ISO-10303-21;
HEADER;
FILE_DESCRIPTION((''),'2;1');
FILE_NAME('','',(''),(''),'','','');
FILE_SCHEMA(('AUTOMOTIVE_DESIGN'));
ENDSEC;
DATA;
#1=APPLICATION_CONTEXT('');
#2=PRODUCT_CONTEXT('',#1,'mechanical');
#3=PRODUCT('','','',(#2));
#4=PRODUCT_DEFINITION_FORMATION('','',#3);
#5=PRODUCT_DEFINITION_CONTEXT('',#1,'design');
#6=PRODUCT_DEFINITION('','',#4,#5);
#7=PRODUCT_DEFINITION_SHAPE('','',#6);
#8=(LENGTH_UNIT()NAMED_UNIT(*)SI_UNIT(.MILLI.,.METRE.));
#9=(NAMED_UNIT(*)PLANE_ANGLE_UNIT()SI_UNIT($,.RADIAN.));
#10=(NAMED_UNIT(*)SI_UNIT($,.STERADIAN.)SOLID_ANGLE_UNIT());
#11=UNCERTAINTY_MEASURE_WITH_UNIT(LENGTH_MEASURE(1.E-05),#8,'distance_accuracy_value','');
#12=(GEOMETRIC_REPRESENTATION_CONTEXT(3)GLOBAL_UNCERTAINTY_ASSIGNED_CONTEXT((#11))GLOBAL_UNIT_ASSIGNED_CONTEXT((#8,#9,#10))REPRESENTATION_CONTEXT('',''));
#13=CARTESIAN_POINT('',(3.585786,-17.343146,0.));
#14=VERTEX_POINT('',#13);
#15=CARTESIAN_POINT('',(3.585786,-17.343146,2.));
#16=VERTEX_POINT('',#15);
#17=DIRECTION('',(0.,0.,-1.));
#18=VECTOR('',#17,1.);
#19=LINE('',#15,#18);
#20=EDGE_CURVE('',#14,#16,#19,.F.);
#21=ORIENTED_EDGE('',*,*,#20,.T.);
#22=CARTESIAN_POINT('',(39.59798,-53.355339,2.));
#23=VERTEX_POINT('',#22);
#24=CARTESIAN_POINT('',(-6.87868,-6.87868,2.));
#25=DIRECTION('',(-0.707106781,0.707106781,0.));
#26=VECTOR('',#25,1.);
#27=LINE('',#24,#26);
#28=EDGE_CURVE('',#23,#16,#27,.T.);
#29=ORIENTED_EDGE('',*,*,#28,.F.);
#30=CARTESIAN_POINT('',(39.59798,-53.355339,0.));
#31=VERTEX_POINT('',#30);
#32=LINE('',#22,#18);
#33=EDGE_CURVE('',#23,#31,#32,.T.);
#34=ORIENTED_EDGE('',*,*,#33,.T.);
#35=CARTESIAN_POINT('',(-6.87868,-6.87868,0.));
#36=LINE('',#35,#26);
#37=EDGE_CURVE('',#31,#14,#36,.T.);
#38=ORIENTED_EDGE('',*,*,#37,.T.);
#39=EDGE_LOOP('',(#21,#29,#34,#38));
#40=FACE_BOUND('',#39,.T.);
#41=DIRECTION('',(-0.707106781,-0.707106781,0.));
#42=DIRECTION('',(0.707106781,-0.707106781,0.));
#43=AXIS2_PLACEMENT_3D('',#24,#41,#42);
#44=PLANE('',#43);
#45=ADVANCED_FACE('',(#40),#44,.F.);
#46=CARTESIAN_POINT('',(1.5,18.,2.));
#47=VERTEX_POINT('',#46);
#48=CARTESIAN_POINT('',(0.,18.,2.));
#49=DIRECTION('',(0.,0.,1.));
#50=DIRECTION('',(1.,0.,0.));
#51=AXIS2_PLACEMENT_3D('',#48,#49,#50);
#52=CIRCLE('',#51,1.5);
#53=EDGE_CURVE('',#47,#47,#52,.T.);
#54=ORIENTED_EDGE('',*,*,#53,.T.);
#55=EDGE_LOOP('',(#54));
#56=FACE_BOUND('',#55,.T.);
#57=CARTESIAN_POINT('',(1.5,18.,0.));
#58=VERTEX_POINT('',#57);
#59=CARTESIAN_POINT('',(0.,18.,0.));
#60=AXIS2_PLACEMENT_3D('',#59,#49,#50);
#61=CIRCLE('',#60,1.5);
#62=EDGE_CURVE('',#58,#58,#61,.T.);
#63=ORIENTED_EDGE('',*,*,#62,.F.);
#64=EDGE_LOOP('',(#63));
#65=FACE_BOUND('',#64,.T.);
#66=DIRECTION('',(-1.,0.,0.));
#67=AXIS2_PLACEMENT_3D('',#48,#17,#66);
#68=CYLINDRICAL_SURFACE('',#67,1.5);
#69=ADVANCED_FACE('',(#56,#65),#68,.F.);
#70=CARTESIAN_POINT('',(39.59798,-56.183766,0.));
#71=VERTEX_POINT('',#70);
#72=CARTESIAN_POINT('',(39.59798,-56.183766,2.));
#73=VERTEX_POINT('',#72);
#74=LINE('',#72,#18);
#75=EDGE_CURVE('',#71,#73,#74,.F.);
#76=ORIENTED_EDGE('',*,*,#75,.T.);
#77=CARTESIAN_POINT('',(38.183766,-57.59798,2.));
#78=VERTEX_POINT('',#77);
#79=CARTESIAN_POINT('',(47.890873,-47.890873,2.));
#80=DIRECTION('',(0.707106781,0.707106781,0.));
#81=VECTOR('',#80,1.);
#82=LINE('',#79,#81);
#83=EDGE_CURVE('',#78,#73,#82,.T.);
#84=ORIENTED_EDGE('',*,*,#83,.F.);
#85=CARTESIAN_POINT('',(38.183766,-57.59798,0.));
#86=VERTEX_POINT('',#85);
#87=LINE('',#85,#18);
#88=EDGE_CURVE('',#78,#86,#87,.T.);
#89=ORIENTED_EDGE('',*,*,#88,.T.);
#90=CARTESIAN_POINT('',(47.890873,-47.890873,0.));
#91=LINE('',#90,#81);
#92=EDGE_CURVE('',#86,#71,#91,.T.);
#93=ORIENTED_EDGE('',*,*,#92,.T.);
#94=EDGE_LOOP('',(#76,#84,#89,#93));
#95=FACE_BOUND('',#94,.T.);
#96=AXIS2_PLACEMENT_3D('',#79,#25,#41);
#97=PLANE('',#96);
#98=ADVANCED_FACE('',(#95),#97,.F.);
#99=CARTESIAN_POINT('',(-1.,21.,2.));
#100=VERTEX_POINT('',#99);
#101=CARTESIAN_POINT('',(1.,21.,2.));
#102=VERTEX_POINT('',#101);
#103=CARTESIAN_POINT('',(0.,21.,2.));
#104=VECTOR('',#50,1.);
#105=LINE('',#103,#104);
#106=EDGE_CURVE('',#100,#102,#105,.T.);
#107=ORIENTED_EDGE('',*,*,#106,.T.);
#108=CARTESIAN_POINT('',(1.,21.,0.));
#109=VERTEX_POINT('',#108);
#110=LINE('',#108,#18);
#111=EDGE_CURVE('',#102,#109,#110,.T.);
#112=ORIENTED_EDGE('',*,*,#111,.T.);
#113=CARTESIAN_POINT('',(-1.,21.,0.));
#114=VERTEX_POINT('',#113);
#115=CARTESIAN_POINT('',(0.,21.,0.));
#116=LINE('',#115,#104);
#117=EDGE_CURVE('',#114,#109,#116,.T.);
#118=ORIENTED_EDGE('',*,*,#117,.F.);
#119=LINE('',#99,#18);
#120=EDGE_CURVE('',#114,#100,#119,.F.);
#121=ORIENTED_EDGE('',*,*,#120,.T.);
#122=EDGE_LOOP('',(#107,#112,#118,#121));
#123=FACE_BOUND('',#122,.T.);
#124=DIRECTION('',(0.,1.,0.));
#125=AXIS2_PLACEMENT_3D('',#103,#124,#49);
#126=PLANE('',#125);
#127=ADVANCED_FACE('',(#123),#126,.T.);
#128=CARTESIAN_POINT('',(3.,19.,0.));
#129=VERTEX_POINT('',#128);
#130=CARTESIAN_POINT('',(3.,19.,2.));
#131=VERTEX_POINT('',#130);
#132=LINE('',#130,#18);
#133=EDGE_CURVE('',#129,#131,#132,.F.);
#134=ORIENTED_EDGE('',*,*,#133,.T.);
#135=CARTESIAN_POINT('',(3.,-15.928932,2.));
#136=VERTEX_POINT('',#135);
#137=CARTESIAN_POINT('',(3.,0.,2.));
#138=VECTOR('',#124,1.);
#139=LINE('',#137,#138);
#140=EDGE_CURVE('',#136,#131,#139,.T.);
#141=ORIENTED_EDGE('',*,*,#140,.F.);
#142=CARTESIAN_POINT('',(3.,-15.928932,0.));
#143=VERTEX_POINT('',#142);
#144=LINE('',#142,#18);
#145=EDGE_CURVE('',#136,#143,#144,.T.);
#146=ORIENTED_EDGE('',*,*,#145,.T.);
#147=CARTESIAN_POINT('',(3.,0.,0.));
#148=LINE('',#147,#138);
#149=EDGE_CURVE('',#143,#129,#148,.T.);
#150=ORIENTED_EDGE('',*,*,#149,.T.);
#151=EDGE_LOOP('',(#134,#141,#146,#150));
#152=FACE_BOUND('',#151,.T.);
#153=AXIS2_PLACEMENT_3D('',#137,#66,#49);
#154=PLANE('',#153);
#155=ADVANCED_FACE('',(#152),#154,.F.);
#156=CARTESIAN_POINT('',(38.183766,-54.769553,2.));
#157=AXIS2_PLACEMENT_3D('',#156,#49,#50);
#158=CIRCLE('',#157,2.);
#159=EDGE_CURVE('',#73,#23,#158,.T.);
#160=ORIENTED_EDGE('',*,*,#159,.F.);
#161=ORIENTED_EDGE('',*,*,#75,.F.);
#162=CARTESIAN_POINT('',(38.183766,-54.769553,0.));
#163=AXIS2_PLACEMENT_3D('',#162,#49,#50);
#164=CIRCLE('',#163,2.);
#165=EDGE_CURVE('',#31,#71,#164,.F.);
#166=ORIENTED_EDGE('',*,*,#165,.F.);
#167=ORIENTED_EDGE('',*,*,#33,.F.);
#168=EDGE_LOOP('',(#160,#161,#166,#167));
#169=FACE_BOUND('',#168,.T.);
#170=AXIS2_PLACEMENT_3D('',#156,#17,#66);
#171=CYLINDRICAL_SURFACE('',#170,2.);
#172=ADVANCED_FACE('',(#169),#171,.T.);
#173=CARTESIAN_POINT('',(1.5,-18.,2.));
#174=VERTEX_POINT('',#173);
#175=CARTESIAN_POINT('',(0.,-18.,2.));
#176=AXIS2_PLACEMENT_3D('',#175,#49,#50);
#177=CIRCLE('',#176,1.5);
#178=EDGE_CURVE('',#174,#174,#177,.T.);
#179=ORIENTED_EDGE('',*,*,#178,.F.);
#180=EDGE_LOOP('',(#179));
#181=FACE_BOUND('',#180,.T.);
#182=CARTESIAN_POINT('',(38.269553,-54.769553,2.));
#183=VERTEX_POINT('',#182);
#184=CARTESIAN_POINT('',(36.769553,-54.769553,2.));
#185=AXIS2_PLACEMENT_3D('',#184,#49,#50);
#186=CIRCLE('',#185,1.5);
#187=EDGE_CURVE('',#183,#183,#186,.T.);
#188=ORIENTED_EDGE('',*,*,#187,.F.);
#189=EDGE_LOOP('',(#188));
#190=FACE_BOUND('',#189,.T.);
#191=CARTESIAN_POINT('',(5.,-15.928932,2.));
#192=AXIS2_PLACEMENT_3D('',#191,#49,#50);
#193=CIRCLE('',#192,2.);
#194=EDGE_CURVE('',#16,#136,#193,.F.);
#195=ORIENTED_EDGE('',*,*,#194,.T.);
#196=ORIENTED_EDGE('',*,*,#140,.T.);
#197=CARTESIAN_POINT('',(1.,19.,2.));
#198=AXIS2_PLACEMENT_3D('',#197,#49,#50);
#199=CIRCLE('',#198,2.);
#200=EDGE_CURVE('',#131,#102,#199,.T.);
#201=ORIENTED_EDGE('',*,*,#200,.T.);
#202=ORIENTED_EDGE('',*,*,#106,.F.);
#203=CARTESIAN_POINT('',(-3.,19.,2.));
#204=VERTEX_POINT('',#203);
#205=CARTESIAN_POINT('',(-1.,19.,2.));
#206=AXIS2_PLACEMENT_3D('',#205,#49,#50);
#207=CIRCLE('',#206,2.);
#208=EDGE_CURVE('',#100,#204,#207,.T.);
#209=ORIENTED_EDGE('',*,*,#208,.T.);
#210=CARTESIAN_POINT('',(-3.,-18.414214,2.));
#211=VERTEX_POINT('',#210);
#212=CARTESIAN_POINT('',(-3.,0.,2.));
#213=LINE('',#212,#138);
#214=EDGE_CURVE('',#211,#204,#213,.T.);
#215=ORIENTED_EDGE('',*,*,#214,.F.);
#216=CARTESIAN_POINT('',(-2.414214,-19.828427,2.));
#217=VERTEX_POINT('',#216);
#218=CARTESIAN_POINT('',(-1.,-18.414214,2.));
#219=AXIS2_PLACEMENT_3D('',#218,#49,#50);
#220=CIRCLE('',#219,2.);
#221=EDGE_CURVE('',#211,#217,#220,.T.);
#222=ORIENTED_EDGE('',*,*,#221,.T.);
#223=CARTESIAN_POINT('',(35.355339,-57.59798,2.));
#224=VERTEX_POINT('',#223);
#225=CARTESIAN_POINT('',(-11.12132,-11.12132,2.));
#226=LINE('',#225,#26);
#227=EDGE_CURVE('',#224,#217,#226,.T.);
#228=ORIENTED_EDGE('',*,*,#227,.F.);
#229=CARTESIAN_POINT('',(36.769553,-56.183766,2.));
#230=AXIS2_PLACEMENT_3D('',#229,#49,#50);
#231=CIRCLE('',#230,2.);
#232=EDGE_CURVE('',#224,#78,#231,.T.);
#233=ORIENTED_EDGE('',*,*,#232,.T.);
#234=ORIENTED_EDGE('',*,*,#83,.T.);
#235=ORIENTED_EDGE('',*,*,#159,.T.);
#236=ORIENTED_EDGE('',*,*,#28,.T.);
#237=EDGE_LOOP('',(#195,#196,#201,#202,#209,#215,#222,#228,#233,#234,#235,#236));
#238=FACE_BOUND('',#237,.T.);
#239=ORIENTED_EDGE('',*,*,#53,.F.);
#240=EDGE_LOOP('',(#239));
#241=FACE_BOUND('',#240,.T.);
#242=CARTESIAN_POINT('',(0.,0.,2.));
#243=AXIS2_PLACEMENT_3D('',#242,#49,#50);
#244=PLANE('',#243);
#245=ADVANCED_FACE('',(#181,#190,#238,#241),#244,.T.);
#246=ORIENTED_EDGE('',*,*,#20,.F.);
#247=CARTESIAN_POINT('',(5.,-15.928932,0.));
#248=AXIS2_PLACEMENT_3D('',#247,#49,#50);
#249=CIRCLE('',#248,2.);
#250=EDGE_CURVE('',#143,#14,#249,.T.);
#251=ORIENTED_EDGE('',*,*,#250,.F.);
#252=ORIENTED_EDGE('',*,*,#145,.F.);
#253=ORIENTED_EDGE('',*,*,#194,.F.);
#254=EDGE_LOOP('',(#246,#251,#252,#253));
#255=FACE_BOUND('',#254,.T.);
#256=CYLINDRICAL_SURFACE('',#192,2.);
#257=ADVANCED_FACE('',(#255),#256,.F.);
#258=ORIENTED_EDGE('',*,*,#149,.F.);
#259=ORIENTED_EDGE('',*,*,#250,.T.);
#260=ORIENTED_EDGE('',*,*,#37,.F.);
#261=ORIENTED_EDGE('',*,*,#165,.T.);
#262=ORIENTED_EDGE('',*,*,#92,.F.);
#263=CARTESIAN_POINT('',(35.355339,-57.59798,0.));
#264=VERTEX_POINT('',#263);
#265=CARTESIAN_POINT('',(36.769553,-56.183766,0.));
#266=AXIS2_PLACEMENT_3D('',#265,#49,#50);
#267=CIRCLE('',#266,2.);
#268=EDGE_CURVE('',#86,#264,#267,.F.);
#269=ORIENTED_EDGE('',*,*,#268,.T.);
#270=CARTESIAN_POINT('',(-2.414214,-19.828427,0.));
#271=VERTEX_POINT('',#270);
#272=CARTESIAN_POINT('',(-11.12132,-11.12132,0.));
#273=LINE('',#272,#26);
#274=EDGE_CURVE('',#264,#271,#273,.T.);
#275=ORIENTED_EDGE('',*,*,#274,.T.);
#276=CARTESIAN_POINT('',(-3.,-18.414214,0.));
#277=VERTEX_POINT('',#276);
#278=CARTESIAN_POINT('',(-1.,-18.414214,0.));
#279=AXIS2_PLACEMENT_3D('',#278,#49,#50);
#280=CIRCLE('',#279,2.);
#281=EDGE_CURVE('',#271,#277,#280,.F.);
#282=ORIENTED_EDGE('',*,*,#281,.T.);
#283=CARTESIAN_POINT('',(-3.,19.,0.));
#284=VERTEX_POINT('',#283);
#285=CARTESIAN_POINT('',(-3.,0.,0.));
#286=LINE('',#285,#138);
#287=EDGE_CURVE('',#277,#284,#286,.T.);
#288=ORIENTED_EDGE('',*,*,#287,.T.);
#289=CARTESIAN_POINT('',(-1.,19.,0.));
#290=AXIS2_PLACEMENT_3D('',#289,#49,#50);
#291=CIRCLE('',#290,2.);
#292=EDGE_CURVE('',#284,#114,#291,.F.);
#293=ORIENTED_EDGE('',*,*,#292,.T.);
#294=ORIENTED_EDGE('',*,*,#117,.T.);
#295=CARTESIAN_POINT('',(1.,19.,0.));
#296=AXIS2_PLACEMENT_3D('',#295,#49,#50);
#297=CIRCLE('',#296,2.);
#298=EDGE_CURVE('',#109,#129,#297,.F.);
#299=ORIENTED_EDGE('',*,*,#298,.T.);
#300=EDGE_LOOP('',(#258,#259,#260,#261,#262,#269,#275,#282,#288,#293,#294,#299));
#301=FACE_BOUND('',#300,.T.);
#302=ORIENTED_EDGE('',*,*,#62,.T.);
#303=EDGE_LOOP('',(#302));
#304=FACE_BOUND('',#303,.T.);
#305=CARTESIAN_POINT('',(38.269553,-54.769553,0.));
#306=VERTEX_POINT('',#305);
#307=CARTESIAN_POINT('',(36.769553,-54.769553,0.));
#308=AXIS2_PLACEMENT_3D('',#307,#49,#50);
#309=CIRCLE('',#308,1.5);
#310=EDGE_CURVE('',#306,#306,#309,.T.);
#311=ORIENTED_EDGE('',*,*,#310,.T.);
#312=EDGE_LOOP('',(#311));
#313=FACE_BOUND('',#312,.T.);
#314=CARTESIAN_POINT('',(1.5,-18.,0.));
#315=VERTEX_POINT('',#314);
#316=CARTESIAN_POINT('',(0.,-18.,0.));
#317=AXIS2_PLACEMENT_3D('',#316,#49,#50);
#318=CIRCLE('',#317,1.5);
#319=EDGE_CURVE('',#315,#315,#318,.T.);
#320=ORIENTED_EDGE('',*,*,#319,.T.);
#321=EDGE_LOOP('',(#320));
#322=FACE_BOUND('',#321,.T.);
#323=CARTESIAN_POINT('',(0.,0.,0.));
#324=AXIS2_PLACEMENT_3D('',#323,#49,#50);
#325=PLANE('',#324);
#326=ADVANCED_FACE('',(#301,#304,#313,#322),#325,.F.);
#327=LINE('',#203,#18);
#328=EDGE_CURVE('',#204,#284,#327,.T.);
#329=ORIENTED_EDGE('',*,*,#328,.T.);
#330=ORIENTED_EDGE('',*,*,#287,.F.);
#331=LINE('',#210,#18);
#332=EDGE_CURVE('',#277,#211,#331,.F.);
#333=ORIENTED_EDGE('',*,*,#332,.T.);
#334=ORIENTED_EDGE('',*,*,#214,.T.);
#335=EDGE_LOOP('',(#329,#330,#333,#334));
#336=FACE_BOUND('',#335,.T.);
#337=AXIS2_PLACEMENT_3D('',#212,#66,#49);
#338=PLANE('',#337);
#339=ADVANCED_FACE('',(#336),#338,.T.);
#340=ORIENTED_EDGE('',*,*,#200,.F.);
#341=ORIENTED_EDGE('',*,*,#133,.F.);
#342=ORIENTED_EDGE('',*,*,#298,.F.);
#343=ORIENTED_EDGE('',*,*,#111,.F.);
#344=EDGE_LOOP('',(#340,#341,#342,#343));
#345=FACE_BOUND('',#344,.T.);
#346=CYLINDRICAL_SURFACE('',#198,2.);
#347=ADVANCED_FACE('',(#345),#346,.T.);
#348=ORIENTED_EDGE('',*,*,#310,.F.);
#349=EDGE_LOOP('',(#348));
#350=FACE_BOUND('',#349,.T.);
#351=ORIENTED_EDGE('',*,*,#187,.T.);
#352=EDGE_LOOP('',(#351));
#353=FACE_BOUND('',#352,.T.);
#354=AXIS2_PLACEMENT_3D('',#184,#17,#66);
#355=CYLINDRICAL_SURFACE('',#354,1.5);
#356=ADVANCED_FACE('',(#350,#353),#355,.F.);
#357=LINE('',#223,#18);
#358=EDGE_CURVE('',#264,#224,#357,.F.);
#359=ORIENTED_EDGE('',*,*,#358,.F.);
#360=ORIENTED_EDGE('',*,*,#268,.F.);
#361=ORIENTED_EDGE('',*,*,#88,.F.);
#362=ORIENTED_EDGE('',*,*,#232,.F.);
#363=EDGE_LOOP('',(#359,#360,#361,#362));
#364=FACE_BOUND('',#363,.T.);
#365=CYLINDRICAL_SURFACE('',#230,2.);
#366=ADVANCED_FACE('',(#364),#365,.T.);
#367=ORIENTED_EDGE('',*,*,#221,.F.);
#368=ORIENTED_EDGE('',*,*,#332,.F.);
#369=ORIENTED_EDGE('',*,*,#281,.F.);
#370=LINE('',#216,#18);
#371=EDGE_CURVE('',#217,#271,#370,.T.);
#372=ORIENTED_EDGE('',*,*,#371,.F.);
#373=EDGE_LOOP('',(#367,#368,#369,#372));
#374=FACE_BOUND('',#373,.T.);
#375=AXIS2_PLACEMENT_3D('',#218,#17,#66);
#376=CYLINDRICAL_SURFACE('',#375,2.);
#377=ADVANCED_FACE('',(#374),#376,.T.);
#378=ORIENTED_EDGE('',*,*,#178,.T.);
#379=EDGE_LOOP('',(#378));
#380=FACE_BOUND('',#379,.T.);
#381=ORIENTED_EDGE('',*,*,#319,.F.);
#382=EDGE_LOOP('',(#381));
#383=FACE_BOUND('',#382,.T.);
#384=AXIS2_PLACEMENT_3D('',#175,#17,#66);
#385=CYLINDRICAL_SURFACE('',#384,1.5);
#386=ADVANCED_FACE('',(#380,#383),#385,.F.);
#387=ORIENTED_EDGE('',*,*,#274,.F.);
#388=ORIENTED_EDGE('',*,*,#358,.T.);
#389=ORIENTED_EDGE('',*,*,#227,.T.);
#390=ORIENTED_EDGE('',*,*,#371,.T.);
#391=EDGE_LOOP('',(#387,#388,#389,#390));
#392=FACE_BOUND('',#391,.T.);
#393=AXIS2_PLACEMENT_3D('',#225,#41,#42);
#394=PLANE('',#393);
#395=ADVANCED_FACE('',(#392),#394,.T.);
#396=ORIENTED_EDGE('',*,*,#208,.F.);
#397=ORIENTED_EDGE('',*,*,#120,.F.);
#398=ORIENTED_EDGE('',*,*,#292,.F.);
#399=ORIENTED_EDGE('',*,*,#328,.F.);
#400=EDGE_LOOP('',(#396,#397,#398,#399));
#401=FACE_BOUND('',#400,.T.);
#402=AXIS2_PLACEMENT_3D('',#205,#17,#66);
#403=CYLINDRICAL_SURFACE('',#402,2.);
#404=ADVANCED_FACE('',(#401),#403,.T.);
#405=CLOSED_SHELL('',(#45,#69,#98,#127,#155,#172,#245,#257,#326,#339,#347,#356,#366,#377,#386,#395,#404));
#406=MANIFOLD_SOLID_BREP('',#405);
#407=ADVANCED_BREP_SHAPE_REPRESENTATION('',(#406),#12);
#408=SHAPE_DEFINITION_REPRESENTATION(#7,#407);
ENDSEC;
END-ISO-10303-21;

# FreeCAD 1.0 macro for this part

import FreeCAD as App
import Part
import Sketcher
from FreeCAD import Vector
Q = App.Units.Quantity


def edges_at(feature, points):
    """Names of the edges that pass closest to the given points."""
    edges = feature.Shape.Edges
    near = lambda p: min(range(len(edges)), key=lambda i: edges[i].distToShape(Part.Vertex(*p))[0])
    return sorted({f"Edge{near(p) + 1}" for p in points})

doc = App.newDocument("Part")
body = doc.addObject("PartDesign::Body", "Body")

# Sketch on XY plane
sketch1 = body.newObject("Sketcher::SketchObject", "Sketch")
sketch1.AttachmentSupport = (doc.getObject("XY_Plane"), [""])
sketch1.MapMode = "FlatFace"
sketch1.addGeometry([
    Part.LineSegment(Vector(-3, 21, 0), Vector(-3, -19.2, 0)),  # 0
    Part.LineSegment(Vector(-3, -19.2, 0), Vector(36.8, -59, 0)),  # 1
    Part.LineSegment(Vector(36.8, -59, 0), Vector(41, -54.8, 0)),  # 2
    Part.LineSegment(Vector(41, -54.8, 0), Vector(3, -16.8, 0)),  # 3
    Part.LineSegment(Vector(3, -16.8, 0), Vector(3, 21, 0)),  # 4
    Part.LineSegment(Vector(3, 21, 0), Vector(-3, 21, 0)),  # 5
    Part.Circle(Vector(36.8, -54.8, 0), Vector(0, 0, 1), 1.5),  # 6
    Part.Circle(Vector(0, -18, 0), Vector(0, 0, 1), 1.5),  # 7
    Part.Circle(Vector(0, 18, 0), Vector(0, 0, 1), 1.5),  # 8
], False)
sketch1.addConstraint([
    Sketcher.Constraint("Coincident", 0, 2, 1, 1),
    Sketcher.Constraint("Coincident", 1, 2, 2, 1),
    Sketcher.Constraint("Coincident", 2, 2, 3, 1),
    Sketcher.Constraint("Coincident", 3, 2, 4, 1),
    Sketcher.Constraint("Coincident", 4, 2, 5, 1),
    Sketcher.Constraint("Coincident", 5, 2, 0, 1),
    Sketcher.Constraint("Vertical", 0),
    Sketcher.Constraint("Vertical", 4),
    Sketcher.Constraint("Horizontal", 5),
    Sketcher.Constraint("Equal", 6, 7),
    Sketcher.Constraint("Equal", 7, 8),
    Sketcher.Constraint("Symmetric", 7, 3, 8, 3, -1, 1),
    Sketcher.Constraint("PointOnObject", 7, 3, -2),
    Sketcher.Constraint("Perpendicular", 1, 2),
    Sketcher.Constraint("Perpendicular", 2, 3),
    Sketcher.Constraint("Horizontal", 6, 3, 2, 2),
    Sketcher.Constraint("Vertical", 6, 3, 1, 2),
    Sketcher.Constraint("Diameter", 6, Q("3 mm")),
    Sketcher.Constraint("DistanceX", 5, 2, 5, 1, Q("6 mm")),
    Sketcher.Constraint("Angle", 1, Q("-45 deg")),
    Sketcher.Constraint("Distance", 2, Q("6 mm")),
    Sketcher.Constraint("DistanceY", 7, 3, -1, 1, Q("18 mm")),
    Sketcher.Constraint("DistanceX", 0, 2, -1, 1, Q("3 mm")),
    Sketcher.Constraint("DistanceY", -1, 1, 4, 2, Q("21 mm")),
    Sketcher.Constraint("DistanceY", 0, 2, 0, 1, Q("40.242641 mm")),
    Sketcher.Constraint("Distance", 1, Q("56.242641 mm")),
])
pad1 = body.newObject("PartDesign::Pad", "Pad")
pad1.Profile = sketch1
pad1.Length = 2
doc.recompute()

fillet = body.newObject("PartDesign::Fillet", "Fillet")
fillet.Base = (pad1, edges_at(pad1, [
    (-3, -19.243, 1),
    (-3, 21, 1),
    (3, 21, 1),
    (3, -16.757, 1),
    (41.012, -54.77, 1),
    (36.77, -59.012, 1),
]))
fillet.Radius = 2

doc.recompute()
